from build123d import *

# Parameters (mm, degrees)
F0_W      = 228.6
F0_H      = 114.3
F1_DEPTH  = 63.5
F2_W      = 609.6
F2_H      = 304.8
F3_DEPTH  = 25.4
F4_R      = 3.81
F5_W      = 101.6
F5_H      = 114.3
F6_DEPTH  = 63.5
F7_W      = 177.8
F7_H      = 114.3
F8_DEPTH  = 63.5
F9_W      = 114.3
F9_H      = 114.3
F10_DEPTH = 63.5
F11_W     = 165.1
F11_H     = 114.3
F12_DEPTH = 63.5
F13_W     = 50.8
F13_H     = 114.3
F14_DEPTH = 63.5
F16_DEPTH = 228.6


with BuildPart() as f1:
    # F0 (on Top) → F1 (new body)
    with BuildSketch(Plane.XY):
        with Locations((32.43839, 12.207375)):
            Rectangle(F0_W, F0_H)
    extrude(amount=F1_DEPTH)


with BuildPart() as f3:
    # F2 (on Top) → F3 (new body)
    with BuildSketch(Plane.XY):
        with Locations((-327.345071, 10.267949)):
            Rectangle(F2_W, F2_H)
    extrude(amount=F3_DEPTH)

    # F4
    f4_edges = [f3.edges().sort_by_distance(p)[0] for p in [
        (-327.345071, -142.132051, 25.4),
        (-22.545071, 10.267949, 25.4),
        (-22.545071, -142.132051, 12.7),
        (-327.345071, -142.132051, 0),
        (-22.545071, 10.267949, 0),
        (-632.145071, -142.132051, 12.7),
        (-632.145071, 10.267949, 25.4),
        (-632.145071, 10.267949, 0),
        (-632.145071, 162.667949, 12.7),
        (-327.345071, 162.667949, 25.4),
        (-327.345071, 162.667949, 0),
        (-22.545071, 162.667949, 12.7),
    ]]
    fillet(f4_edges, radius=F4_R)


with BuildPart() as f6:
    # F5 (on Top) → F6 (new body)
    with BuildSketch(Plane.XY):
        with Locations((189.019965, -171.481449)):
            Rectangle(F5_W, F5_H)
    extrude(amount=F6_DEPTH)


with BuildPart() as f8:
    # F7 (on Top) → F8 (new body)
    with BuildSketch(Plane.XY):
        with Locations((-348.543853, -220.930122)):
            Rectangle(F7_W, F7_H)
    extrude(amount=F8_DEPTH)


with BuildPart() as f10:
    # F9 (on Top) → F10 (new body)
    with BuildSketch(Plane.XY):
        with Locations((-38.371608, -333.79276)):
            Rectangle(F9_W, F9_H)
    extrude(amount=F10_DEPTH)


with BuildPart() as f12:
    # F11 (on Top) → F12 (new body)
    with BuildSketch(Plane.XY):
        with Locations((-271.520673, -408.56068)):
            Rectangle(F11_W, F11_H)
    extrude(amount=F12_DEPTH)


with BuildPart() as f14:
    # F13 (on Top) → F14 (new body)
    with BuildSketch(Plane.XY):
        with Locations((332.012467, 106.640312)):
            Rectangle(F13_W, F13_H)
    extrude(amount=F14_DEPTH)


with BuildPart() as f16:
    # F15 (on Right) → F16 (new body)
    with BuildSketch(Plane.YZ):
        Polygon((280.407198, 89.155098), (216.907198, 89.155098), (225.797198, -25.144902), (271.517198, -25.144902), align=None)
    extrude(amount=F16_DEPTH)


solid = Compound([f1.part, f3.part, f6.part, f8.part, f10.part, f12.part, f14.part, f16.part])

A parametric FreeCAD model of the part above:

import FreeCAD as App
import Part
import Sketcher
from FreeCAD import Vector
Q = App.Units.Quantity

doc = App.newDocument("Part")
body = doc.addObject("PartDesign::Body", "Body")

sketch1 = body.newObject("Sketcher::SketchObject", "Sketch")
sketch1.AttachmentSupport = (doc.getObject("XY_Plane"), [""])
sketch1.MapMode = "FlatFace"
sketch1.addGeometry(Part.LineSegment(Vector(-81.86161, 69.357375, 0), Vector(-81.86161, -44.942625, 0)), False)
sketch1.addGeometry(Part.LineSegment(Vector(-81.86161, -44.942625, 0), Vector(146.73839, -44.942625, 0)), False)
sketch1.addGeometry(Part.LineSegment(Vector(146.73839, -44.942625, 0), Vector(146.73839, 69.357375, 0)), False)
sketch1.addGeometry(Part.LineSegment(Vector(146.73839, 69.357375, 0), Vector(-81.86161, 69.357375, 0)), False)
sketch1.addConstraint(Sketcher.Constraint("Coincident", 0, 2, 1, 1))
sketch1.addConstraint(Sketcher.Constraint("Coincident", 1, 2, 2, 1))
sketch1.addConstraint(Sketcher.Constraint("Coincident", 2, 2, 3, 1))
sketch1.addConstraint(Sketcher.Constraint("Coincident", 3, 2, 0, 1))
sketch1.addConstraint(Sketcher.Constraint("Vertical", 0))
sketch1.addConstraint(Sketcher.Constraint("Horizontal", 1))
sketch1.addConstraint(Sketcher.Constraint("Vertical", 2))
sketch1.addConstraint(Sketcher.Constraint("Horizontal", 3))
sketch1.addConstraint(Sketcher.Constraint("DistanceX", 1, 1, 1, 2, Q("9 in")))
sketch1.addConstraint(Sketcher.Constraint("DistanceY", 0, 2, 0, 1, Q("4.5 in")))
sketch1.addConstraint(Sketcher.Constraint("DistanceX", 0, 2, -1, 1, 81.86161))
sketch1.addConstraint(Sketcher.Constraint("DistanceY", 0, 2, -1, 1, 44.942625))
pad1 = body.newObject("PartDesign::Pad", "Pad")
pad1.Profile = sketch1
pad1.Length = Q("2.5 in")
body2 = doc.addObject("PartDesign::Body", "Body001")

sketch2 = body2.newObject("Sketcher::SketchObject", "Sketch001")
sketch2.AttachmentSupport = (doc.getObject("XY_Plane001"), [""])
sketch2.MapMode = "FlatFace"
sketch2.addGeometry(Part.LineSegment(Vector(-632.145071, 162.667949, 0), Vector(-632.145071, -142.132051, 0)), False)
sketch2.addGeometry(Part.LineSegment(Vector(-632.145071, -142.132051, 0), Vector(-22.545071, -142.132051, 0)), False)
sketch2.addGeometry(Part.LineSegment(Vector(-22.545071, -142.132051, 0), Vector(-22.545071, 162.667949, 0)), False)
sketch2.addGeometry(Part.LineSegment(Vector(-22.545071, 162.667949, 0), Vector(-632.145071, 162.667949, 0)), False)
sketch2.addConstraint(Sketcher.Constraint("Coincident", 0, 2, 1, 1))
sketch2.addConstraint(Sketcher.Constraint("Coincident", 1, 2, 2, 1))
sketch2.addConstraint(Sketcher.Constraint("Coincident", 2, 2, 3, 1))
sketch2.addConstraint(Sketcher.Constraint("Coincident", 3, 2, 0, 1))
sketch2.addConstraint(Sketcher.Constraint("Vertical", 0))
sketch2.addConstraint(Sketcher.Constraint("Horizontal", 1))
sketch2.addConstraint(Sketcher.Constraint("Vertical", 2))
sketch2.addConstraint(Sketcher.Constraint("Horizontal", 3))
sketch2.addConstraint(Sketcher.Constraint("DistanceX", 1, 1, 1, 2, Q("24 in")))
sketch2.addConstraint(Sketcher.Constraint("DistanceY", 0, 2, 0, 1, Q("12 in")))
sketch2.addConstraint(Sketcher.Constraint("DistanceX", 0, 2, -1, 1, 632.145071))
sketch2.addConstraint(Sketcher.Constraint("DistanceY", 0, 2, -1, 1, 142.132051))
pad2 = body2.newObject("PartDesign::Pad", "Pad001")
pad2.Profile = sketch2
pad2.Length = Q("1 in")
doc.recompute()

fillet = body2.newObject("PartDesign::Fillet", "Fillet")
fillet.Base = (pad2, ["Edge1"])
fillet.UseAllEdges = True
fillet.Radius = Q("0.15 in")
body3 = doc.addObject("PartDesign::Body", "Body002")

sketch3 = body3.newObject("Sketcher::SketchObject", "Sketch002")
sketch3.AttachmentSupport = (doc.getObject("XY_Plane002"), [""])
sketch3.MapMode = "FlatFace"
sketch3.addGeometry(Part.LineSegment(Vector(138.219965, -114.331449, 0), Vector(138.219965, -228.631449, 0)), False)
sketch3.addGeometry(Part.LineSegment(Vector(138.219965, -228.631449, 0), Vector(239.819965, -228.631449, 0)), False)
sketch3.addGeometry(Part.LineSegment(Vector(239.819965, -228.631449, 0), Vector(239.819965, -114.331449, 0)), False)
sketch3.addGeometry(Part.LineSegment(Vector(239.819965, -114.331449, 0), Vector(138.219965, -114.331449, 0)), False)
sketch3.addConstraint(Sketcher.Constraint("Coincident", 0, 2, 1, 1))
sketch3.addConstraint(Sketcher.Constraint("Coincident", 1, 2, 2, 1))
sketch3.addConstraint(Sketcher.Constraint("Coincident", 2, 2, 3, 1))
sketch3.addConstraint(Sketcher.Constraint("Coincident", 3, 2, 0, 1))
sketch3.addConstraint(Sketcher.Constraint("Vertical", 0))
sketch3.addConstraint(Sketcher.Constraint("Horizontal", 1))
sketch3.addConstraint(Sketcher.Constraint("Vertical", 2))
sketch3.addConstraint(Sketcher.Constraint("Horizontal", 3))
sketch3.addConstraint(Sketcher.Constraint("DistanceX", 1, 1, 1, 2, Q("4 in")))
sketch3.addConstraint(Sketcher.Constraint("DistanceY", 0, 2, 0, 1, Q("4.5 in")))
sketch3.addConstraint(Sketcher.Constraint("DistanceY", 0, 2, -1, 1, 228.631449))
sketch3.addConstraint(Sketcher.Constraint("DistanceX", -1, 1, 0, 2, 138.219965))
pad3 = body3.newObject("PartDesign::Pad", "Pad002")
pad3.Profile = sketch3
pad3.Length = Q("2.5 in")
body4 = doc.addObject("PartDesign::Body", "Body003")

sketch4 = body4.newObject("Sketcher::SketchObject", "Sketch003")
sketch4.AttachmentSupport = (doc.getObject("XY_Plane003"), [""])
sketch4.MapMode = "FlatFace"
sketch4.addGeometry(Part.LineSegment(Vector(-437.443853, -163.780122, 0), Vector(-437.443853, -278.080122, 0)), False)
sketch4.addGeometry(Part.LineSegment(Vector(-437.443853, -278.080122, 0), Vector(-259.643853, -278.080122, 0)), False)
sketch4.addGeometry(Part.LineSegment(Vector(-259.643853, -278.080122, 0), Vector(-259.643853, -163.780122, 0)), False)
sketch4.addGeometry(Part.LineSegment(Vector(-259.643853, -163.780122, 0), Vector(-437.443853, -163.780122, 0)), False)
sketch4.addConstraint(Sketcher.Constraint("Coincident", 0, 2, 1, 1))
sketch4.addConstraint(Sketcher.Constraint("Coincident", 1, 2, 2, 1))
sketch4.addConstraint(Sketcher.Constraint("Coincident", 2, 2, 3, 1))
sketch4.addConstraint(Sketcher.Constraint("Coincident", 3, 2, 0, 1))
sketch4.addConstraint(Sketcher.Constraint("Vertical", 0))
sketch4.addConstraint(Sketcher.Constraint("Horizontal", 1))
sketch4.addConstraint(Sketcher.Constraint("Vertical", 2))
sketch4.addConstraint(Sketcher.Constraint("Horizontal", 3))
sketch4.addConstraint(Sketcher.Constraint("DistanceX", 1, 1, 1, 2, Q("7 in")))
sketch4.addConstraint(Sketcher.Constraint("DistanceY", 0, 2, 0, 1, Q("4.5 in")))
sketch4.addConstraint(Sketcher.Constraint("DistanceY", 0, 2, -1, 1, 278.080122))
sketch4.addConstraint(Sketcher.Constraint("DistanceX", 0, 2, -1, 1, 437.443853))
pad4 = body4.newObject("PartDesign::Pad", "Pad003")
pad4.Profile = sketch4
pad4.Length = Q("2.5 in")
body5 = doc.addObject("PartDesign::Body", "Body004")

sketch5 = body5.newObject("Sketcher::SketchObject", "Sketch004")
sketch5.AttachmentSupport = (doc.getObject("XY_Plane004"), [""])
sketch5.MapMode = "FlatFace"
sketch5.addGeometry(Part.LineSegment(Vector(-95.521608, -276.64276, 0), Vector(-95.521608, -390.94276, 0)), False)
sketch5.addGeometry(Part.LineSegment(Vector(-95.521608, -390.94276, 0), Vector(18.778392, -390.94276, 0)), False)
sketch5.addGeometry(Part.LineSegment(Vector(18.778392, -390.94276, 0), Vector(18.778392, -276.64276, 0)), False)
sketch5.addGeometry(Part.LineSegment(Vector(18.778392, -276.64276, 0), Vector(-95.521608, -276.64276, 0)), False)
sketch5.addConstraint(Sketcher.Constraint("Coincident", 0, 2, 1, 1))
sketch5.addConstraint(Sketcher.Constraint("Coincident", 1, 2, 2, 1))
sketch5.addConstraint(Sketcher.Constraint("Coincident", 2, 2, 3, 1))
sketch5.addConstraint(Sketcher.Constraint("Coincident", 3, 2, 0, 1))
sketch5.addConstraint(Sketcher.Constraint("Vertical", 0))
sketch5.addConstraint(Sketcher.Constraint("Horizontal", 1))
sketch5.addConstraint(Sketcher.Constraint("Vertical", 2))
sketch5.addConstraint(Sketcher.Constraint("Horizontal", 3))
sketch5.addConstraint(Sketcher.Constraint("Equal", 3, 0))
sketch5.addConstraint(Sketcher.Constraint("DistanceX", 1, 1, 1, 2, Q("4.5 in")))
sketch5.addConstraint(Sketcher.Constraint("DistanceX", 0, 2, -1, 1, 95.521608))
sketch5.addConstraint(Sketcher.Constraint("DistanceY", 0, 2, -1, 1, 390.94276))
pad5 = body5.newObject("PartDesign::Pad", "Pad004")
pad5.Profile = sketch5
pad5.Length = Q("2.5 in")
body6 = doc.addObject("PartDesign::Body", "Body005")

sketch6 = body6.newObject("Sketcher::SketchObject", "Sketch005")
sketch6.AttachmentSupport = (doc.getObject("XY_Plane005"), [""])
sketch6.MapMode = "FlatFace"
sketch6.addGeometry(Part.LineSegment(Vector(-354.070673, -351.41068, 0), Vector(-354.070673, -465.71068, 0)), False)
sketch6.addGeometry(Part.LineSegment(Vector(-354.070673, -465.71068, 0), Vector(-188.970673, -465.71068, 0)), False)
sketch6.addGeometry(Part.LineSegment(Vector(-188.970673, -465.71068, 0), Vector(-188.970673, -351.41068, 0)), False)
sketch6.addGeometry(Part.LineSegment(Vector(-188.970673, -351.41068, 0), Vector(-354.070673, -351.41068, 0)), False)
sketch6.addConstraint(Sketcher.Constraint("Coincident", 0, 2, 1, 1))
sketch6.addConstraint(Sketcher.Constraint("Coincident", 1, 2, 2, 1))
sketch6.addConstraint(Sketcher.Constraint("Coincident", 2, 2, 3, 1))
sketch6.addConstraint(Sketcher.Constraint("Coincident", 3, 2, 0, 1))
sketch6.addConstraint(Sketcher.Constraint("Vertical", 0))
sketch6.addConstraint(Sketcher.Constraint("Horizontal", 1))
sketch6.addConstraint(Sketcher.Constraint("Vertical", 2))
sketch6.addConstraint(Sketcher.Constraint("Horizontal", 3))
sketch6.addConstraint(Sketcher.Constraint("DistanceX", 1, 1, 1, 2, Q("6.5 in")))
sketch6.addConstraint(Sketcher.Constraint("DistanceY", 0, 2, 0, 1, Q("4.5 in")))
sketch6.addConstraint(Sketcher.Constraint("DistanceY", 0, 2, -1, 1, 465.71068))
sketch6.addConstraint(Sketcher.Constraint("DistanceX", 0, 2, -1, 1, 354.070673))
pad6 = body6.newObject("PartDesign::Pad", "Pad005")
pad6.Profile = sketch6
pad6.Length = Q("2.5 in")
body7 = doc.addObject("PartDesign::Body", "Body006")

sketch7 = body7.newObject("Sketcher::SketchObject", "Sketch006")
sketch7.AttachmentSupport = (doc.getObject("XY_Plane006"), [""])
sketch7.MapMode = "FlatFace"
sketch7.addGeometry(Part.LineSegment(Vector(306.612467, 163.790312, 0), Vector(306.612467, 49.490312, 0)), False)
sketch7.addGeometry(Part.LineSegment(Vector(306.612467, 49.490312, 0), Vector(357.412467, 49.490312, 0)), False)
sketch7.addGeometry(Part.LineSegment(Vector(357.412467, 49.490312, 0), Vector(357.412467, 163.790312, 0)), False)
sketch7.addGeometry(Part.LineSegment(Vector(357.412467, 163.790312, 0), Vector(306.612467, 163.790312, 0)), False)
sketch7.addConstraint(Sketcher.Constraint("Coincident", 0, 2, 1, 1))
sketch7.addConstraint(Sketcher.Constraint("Coincident", 1, 2, 2, 1))
sketch7.addConstraint(Sketcher.Constraint("Coincident", 2, 2, 3, 1))
sketch7.addConstraint(Sketcher.Constraint("Coincident", 3, 2, 0, 1))
sketch7.addConstraint(Sketcher.Constraint("Vertical", 0))
sketch7.addConstraint(Sketcher.Constraint("Horizontal", 1))
sketch7.addConstraint(Sketcher.Constraint("Vertical", 2))
sketch7.addConstraint(Sketcher.Constraint("Horizontal", 3))
sketch7.addConstraint(Sketcher.Constraint("DistanceX", 1, 1, 1, 2, Q("2 in")))
sketch7.addConstraint(Sketcher.Constraint("DistanceY", 0, 2, 0, 1, Q("4.5 in")))
sketch7.addConstraint(Sketcher.Constraint("DistanceY", -1, 1, 2, 2, 163.790312))
sketch7.addConstraint(Sketcher.Constraint("DistanceX", -1, 1, 0, 2, 306.612467))
pad7 = body7.newObject("PartDesign::Pad", "Pad006")
pad7.Profile = sketch7
pad7.Length = Q("2.5 in")
body8 = doc.addObject("PartDesign::Body", "Body007")

sketch8 = body8.newObject("Sketcher::SketchObject", "Sketch007")
sketch8.AttachmentSupport = (doc.getObject("YZ_Plane007"), [""])
sketch8.MapMode = "FlatFace"
sketch8.addGeometry(Part.LineSegment(Vector(280.407198, 89.155098, 0), Vector(216.907198, 89.155098, 0)), False)
sketch8.addGeometry(Part.LineSegment(Vector(216.907198, 89.155098, 0), Vector(225.797198, -25.144902, 0)), False)
sketch8.addGeometry(Part.LineSegment(Vector(225.797198, -25.144902, 0), Vector(271.517198, -25.144902, 0)), False)
sketch8.addGeometry(Part.LineSegment(Vector(271.517198, -25.144902, 0), Vector(280.407198, 89.155098, 0)), False)
sketch8.addConstraint(Sketcher.Constraint("Coincident", 0, 2, 1, 1))
sketch8.addConstraint(Sketcher.Constraint("Coincident", 1, 2, 2, 1))
sketch8.addConstraint(Sketcher.Constraint("Coincident", 2, 2, 3, 1))
sketch8.addConstraint(Sketcher.Constraint("Coincident", 3, 2, 0, 1))
sketch8.addConstraint(Sketcher.Constraint("Horizontal", 0))
sketch8.addConstraint(Sketcher.Constraint("Horizontal", 2))
sketch8.addConstraint(Sketcher.Constraint("Equal", 1, 3))
sketch8.addConstraint(Sketcher.Constraint("DistanceX", 0, 2, 0, 1, Q("2.5 in")))
sketch8.addConstraint(Sketcher.Constraint("DistanceX", 2, 1, 2, 2, Q("1.8 in")))
sketch8.addConstraint(Sketcher.Constraint("DistanceY", 1, 2, 0, 2, Q("4.5 in")))
sketch8.addConstraint(Sketcher.Constraint("DistanceX", -1, 1, 0, 2, 216.907198))
sketch8.addConstraint(Sketcher.Constraint("DistanceY", 1, 2, -1, 1, 25.144902))
pad8 = body8.newObject("PartDesign::Pad", "Pad007")
pad8.Profile = sketch8
pad8.Length = Q("9 in")

doc.recompute()
